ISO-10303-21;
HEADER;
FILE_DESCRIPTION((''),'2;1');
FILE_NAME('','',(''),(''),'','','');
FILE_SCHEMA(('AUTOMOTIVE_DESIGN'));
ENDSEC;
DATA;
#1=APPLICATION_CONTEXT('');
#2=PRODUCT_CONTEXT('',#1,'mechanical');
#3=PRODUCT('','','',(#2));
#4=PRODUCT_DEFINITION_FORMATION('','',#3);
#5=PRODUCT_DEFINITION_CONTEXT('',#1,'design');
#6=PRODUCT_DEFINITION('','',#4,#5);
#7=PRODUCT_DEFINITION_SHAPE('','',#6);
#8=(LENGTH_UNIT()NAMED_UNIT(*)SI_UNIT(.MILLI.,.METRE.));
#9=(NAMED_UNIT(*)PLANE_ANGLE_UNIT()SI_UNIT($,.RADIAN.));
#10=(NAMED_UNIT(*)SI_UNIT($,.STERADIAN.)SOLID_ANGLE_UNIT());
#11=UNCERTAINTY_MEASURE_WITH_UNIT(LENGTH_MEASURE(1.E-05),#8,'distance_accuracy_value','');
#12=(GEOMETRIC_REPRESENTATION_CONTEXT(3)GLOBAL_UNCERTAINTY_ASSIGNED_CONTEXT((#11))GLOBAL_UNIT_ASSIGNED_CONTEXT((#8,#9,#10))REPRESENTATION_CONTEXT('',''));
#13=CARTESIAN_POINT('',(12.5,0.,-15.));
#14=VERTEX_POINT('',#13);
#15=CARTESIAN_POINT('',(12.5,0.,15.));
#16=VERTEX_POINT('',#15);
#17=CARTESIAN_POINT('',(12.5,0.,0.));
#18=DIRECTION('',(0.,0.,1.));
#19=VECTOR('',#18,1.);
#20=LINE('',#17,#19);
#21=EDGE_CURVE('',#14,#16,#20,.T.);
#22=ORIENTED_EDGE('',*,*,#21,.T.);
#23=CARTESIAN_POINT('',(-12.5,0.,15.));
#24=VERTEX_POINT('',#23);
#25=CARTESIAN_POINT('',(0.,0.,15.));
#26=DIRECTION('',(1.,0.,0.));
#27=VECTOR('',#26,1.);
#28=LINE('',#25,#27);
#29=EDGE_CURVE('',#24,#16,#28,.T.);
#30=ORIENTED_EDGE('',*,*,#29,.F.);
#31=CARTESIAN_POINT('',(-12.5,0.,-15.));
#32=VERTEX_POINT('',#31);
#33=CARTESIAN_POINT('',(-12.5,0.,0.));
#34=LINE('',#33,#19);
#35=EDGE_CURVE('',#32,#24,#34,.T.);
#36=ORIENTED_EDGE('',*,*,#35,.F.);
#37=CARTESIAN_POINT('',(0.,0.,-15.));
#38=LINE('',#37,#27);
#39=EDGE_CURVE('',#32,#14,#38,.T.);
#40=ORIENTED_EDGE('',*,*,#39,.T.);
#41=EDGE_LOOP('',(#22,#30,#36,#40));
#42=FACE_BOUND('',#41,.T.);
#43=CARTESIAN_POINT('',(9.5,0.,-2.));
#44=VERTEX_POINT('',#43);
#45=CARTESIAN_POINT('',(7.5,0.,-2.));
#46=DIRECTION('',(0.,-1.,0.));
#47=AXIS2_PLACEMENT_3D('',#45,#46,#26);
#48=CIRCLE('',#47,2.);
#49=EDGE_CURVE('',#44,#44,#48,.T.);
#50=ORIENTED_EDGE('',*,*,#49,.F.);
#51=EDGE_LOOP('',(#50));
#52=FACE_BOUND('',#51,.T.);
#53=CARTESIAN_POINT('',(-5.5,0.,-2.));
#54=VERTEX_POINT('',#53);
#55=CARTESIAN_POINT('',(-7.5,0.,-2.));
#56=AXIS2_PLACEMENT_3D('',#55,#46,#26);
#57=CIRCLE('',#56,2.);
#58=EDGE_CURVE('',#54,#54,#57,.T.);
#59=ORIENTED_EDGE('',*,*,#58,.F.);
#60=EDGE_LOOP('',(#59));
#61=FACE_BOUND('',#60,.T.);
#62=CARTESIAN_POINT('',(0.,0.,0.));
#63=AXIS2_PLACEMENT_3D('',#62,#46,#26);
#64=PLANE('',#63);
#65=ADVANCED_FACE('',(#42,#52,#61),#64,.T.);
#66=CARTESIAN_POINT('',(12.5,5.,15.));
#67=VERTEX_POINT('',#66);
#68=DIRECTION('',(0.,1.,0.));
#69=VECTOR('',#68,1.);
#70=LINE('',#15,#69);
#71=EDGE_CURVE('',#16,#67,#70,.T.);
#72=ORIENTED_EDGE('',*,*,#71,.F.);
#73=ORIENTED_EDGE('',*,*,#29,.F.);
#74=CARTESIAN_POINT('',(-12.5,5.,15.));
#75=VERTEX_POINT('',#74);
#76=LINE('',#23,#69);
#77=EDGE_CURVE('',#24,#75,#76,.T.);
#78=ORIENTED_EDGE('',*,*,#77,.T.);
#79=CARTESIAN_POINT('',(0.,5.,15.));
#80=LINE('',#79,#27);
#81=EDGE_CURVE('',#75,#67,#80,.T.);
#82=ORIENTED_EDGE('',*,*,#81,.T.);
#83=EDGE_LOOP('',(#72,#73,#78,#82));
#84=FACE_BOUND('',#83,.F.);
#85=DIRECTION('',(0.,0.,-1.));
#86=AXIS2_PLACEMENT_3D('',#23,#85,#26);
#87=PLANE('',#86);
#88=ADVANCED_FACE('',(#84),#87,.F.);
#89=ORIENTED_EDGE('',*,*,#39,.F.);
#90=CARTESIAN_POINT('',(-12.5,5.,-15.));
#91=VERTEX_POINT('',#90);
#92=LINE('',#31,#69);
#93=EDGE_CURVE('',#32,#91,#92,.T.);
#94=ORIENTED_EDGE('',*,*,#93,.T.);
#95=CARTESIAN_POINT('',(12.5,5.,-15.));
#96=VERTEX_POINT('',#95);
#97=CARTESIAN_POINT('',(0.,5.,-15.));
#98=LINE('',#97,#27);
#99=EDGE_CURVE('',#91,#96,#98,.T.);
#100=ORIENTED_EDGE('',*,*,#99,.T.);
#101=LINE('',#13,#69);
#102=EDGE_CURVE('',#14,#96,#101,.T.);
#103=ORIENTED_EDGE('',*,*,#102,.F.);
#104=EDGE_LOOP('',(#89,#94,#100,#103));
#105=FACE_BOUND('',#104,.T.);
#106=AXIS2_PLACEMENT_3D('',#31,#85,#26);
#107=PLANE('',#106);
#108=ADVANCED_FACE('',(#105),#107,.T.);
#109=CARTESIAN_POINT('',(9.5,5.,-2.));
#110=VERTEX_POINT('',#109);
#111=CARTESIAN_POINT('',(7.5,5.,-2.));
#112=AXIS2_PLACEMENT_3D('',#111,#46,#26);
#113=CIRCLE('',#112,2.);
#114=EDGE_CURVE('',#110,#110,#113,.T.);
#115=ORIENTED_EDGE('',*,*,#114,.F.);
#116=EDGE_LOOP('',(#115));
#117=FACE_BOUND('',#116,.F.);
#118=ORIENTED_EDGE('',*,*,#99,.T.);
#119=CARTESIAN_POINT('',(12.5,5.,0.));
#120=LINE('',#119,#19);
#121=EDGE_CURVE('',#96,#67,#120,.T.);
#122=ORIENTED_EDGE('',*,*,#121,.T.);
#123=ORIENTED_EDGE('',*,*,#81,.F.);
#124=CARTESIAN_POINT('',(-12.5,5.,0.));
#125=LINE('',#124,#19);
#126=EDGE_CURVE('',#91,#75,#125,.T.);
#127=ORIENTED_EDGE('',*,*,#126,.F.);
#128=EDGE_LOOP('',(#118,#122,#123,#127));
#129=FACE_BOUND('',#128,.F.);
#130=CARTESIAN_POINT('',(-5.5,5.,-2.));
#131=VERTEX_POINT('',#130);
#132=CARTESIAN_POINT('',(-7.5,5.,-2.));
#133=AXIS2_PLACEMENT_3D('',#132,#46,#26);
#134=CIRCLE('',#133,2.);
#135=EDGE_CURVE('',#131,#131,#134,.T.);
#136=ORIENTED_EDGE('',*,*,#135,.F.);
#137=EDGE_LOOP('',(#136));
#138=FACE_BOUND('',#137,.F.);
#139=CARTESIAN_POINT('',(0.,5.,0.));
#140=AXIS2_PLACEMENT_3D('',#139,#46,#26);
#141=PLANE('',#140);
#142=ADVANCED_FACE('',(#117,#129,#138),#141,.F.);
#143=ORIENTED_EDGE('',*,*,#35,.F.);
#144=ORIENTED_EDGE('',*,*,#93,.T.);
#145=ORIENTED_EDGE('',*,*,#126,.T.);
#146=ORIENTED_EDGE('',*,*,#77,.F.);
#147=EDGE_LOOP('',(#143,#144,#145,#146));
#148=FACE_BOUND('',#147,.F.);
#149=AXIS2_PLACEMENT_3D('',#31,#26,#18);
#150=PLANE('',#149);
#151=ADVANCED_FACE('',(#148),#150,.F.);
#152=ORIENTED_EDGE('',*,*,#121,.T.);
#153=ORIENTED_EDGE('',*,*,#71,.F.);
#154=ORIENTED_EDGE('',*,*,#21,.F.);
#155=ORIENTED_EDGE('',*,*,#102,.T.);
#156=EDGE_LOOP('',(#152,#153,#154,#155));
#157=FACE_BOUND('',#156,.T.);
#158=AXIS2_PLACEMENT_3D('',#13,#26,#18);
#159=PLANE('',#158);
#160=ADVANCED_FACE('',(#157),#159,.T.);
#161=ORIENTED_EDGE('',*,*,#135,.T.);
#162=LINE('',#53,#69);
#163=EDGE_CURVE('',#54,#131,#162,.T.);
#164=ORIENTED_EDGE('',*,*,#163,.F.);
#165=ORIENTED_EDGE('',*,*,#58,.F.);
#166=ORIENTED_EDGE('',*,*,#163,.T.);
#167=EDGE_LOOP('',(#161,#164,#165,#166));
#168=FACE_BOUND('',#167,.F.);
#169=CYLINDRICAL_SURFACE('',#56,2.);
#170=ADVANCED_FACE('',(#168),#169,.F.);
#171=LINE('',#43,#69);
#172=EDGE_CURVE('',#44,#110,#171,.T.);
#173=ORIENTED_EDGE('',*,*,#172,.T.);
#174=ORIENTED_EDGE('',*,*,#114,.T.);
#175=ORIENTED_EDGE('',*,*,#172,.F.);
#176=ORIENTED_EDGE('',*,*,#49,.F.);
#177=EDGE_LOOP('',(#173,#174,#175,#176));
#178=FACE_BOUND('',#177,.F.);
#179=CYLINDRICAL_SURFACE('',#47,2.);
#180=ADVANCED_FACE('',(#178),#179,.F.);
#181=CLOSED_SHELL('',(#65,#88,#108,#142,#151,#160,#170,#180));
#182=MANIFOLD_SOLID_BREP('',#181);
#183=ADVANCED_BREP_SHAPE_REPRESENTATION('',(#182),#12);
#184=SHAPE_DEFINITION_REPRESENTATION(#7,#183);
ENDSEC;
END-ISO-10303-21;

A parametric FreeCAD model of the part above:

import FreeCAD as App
import Part
import Sketcher


def add_polygon(sketch, points):
    """Adds a closed chain of lines whose ends are joined by coincident constraints."""
    first, n = sketch.GeometryCount, len(points)
    for a, b in zip(points, points[1:] + points[:1]):
        sketch.addGeometry(Part.LineSegment(App.Vector(*a, 0), App.Vector(*b, 0)), False)
    for i in range(n):
        sketch.addConstraint(Sketcher.Constraint("Coincident", first + i, 2, first + (i + 1) % n, 1))

doc = App.newDocument("Part")
body = doc.addObject("PartDesign::Body", "Body")

# Sketch on XZ plane
sketch1 = body.newObject("Sketcher::SketchObject", "Sketch")
sketch1.AttachmentSupport = (doc.getObject("XZ_Plane"), [""])
sketch1.MapMode = "FlatFace"
add_polygon(sketch1, [(-12.5, 15), (-12.5, -15), (12.5, -15), (12.5, 15)])  # lines 0-3
sketch1.addGeometry(Part.Circle(App.Vector(-7.5, -2, 0), App.Vector(0, 0, 1), 2), False)  # 4
sketch1.addGeometry(Part.Circle(App.Vector(7.5, -2, 0), App.Vector(0, 0, 1), 2), False)  # 5
sketch1.addConstraint([
    Sketcher.Constraint("Vertical", 0),
    Sketcher.Constraint("Horizontal", 1),
    Sketcher.Constraint("Vertical", 2),
    Sketcher.Constraint("Horizontal", 3),
    Sketcher.Constraint("Equal", 4, 5),
    Sketcher.Constraint("Symmetric", 0, 2, 2, 2, -1, 1),
    Sketcher.Constraint("Symmetric", 4, 3, 5, 3, -2),
    Sketcher.Constraint("Diameter", 4, 4.0),
    Sketcher.Constraint("DistanceX", 1, 1, 1, 2, 25.0),
    Sketcher.Constraint("DistanceY", 0, 2, 0, 1, 30.0),
    Sketcher.Constraint("DistanceY", 4, 3, -1, 1, 2.0),
    Sketcher.Constraint("DistanceX", 4, 3, 5, 3, 15.0),
])
pad1 = body.newObject("PartDesign::Pad", "Pad")
pad1.Profile = sketch1
pad1.Length = 5
pad1.Reversed = True

doc.recompute()
